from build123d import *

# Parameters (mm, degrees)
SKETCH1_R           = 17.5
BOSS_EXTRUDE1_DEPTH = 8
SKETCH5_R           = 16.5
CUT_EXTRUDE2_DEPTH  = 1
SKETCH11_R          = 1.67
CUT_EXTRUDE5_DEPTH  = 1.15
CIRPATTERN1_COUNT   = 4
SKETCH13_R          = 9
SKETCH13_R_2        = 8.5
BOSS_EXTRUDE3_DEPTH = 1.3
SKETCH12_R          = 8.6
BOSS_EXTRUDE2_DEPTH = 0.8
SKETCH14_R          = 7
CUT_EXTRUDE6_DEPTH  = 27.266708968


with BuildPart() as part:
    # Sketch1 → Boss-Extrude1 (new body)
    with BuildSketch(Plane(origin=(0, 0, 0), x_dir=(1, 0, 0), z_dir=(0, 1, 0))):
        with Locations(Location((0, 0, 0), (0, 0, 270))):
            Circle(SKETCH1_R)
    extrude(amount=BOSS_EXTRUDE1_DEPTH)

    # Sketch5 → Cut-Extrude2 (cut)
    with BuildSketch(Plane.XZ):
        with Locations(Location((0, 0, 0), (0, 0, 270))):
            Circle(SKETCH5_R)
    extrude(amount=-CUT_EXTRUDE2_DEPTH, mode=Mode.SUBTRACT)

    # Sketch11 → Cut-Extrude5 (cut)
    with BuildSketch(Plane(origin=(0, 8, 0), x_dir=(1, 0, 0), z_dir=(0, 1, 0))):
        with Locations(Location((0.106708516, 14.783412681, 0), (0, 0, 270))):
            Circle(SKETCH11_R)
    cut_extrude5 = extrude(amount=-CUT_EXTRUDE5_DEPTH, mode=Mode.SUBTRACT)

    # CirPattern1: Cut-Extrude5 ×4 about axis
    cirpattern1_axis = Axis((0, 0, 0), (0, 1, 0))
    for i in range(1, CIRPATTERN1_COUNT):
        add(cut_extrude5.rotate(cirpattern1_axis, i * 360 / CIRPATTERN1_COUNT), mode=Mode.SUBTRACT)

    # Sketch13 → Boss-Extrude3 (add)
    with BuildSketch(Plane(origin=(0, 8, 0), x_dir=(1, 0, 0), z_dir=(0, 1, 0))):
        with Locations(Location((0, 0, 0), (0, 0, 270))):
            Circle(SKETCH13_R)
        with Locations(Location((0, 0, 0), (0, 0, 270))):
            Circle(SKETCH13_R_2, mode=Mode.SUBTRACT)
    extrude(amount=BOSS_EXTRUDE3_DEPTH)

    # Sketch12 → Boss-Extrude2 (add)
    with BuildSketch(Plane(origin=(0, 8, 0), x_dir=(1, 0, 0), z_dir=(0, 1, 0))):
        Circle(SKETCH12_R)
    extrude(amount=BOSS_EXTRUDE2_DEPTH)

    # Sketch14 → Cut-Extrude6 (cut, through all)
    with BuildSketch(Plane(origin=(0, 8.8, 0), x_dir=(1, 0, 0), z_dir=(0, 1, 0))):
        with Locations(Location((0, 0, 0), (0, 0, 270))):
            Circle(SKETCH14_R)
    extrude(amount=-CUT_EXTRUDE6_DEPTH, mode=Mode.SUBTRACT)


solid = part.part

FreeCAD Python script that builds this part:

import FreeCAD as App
import Part
import Sketcher
Q = App.Units.Quantity

doc = App.newDocument("Part")
params = doc.addObject("Spreadsheet::Sheet", "Params")
for row, (alias, value) in enumerate([
    ("sketch1_diameter", "35 mm"),
    ("pad1_length", "8 mm"),
    ("sketch2_diameter", "33 mm"),
    ("pocket1_length", "1 mm"),
    ("sketch3_diameter", "3.34 mm"),
    ("pocket2_length", "1.15 mm"),
    ("sketch4_diameter", "18 mm"),
    ("sketch4_diameter2", "17 mm"),
    ("pad2_length", "1.3 mm"),
    ("sketch5_diameter", "17.2 mm"),
    ("pad3_length", "0.8 mm"),
    ("sketch6_diameter", "14 mm"),
], start=1):
    params.set(f"A{row}", alias)
    params.set(f"B{row}", "=" + value)
    params.setAlias(f"B{row}", alias)

body = doc.addObject("PartDesign::Body", "Body")

# Sketch on XZ plane
sketch1 = doc.addObject("Sketcher::SketchObject", "Sketch")
body.addObject(sketch1)
sketch1.AttachmentSupport = (doc.XZ_Plane, [""])
sketch1.MapMode = "FlatFace"
sketch1.addGeometry(Part.Circle(App.Vector(0, 0, 0), App.Vector(0, 0, 1), 17.5), False)
sketch1.addConstraint([
    Sketcher.Constraint("Coincident", 0, 3, -1, 1),
    Sketcher.Constraint("Diameter", 0, Q("35 mm")),
])
sketch1.setExpression("Constraints[1]", "Params.sketch1_diameter")
pad1 = doc.addObject("PartDesign::Pad", "Pad")
body.addObject(pad1)
pad1.Profile = sketch1
pad1.setExpression("Length", "Params.pad1_length")
pad1.Reversed = True

# Sketch on XZ plane
sketch2 = doc.addObject("Sketcher::SketchObject", "Sketch001")
body.addObject(sketch2)
sketch2.AttachmentSupport = (doc.XZ_Plane, [""])
sketch2.MapMode = "FlatFace"
sketch2.addGeometry(Part.Circle(App.Vector(0, 0, 0), App.Vector(0, 0, 1), 16.5), False)
sketch2.addConstraint([
    Sketcher.Constraint("Coincident", 0, 3, -1, 1),
    Sketcher.Constraint("Diameter", 0, Q("33 mm")),
])
sketch2.setExpression("Constraints[1]", "Params.sketch2_diameter")
pocket1 = doc.addObject("PartDesign::Pocket", "Pocket")
body.addObject(pocket1)
pocket1.Profile = sketch2
pocket1.setExpression("Length", "Params.pocket1_length")

# Sketch on XZ plane
sketch3 = doc.addObject("Sketcher::SketchObject", "Sketch002")
body.addObject(sketch3)
sketch3.AttachmentSupport = (doc.XZ_Plane, [""])
sketch3.MapMode = "FlatFace"
sketch3.AttachmentOffset = App.Placement(App.Vector(0, 0, -8), App.Rotation())
sketch3.addGeometry(Part.Circle(App.Vector(0.106709, -14.783413, 0), App.Vector(0, 0, 1), 1.67), False)
sketch3.addConstraint([
    Sketcher.Constraint("Diameter", 0, Q("3.34 mm")),
    Sketcher.Constraint("DistanceX", -1, 1, 0, 3, Q("0.106709 mm")),
    Sketcher.Constraint("DistanceY", 0, 3, -1, 1, Q("14.783413 mm")),
])
sketch3.setExpression("Constraints[0]", "Params.sketch3_diameter")
pocket2 = doc.addObject("PartDesign::Pocket", "Pocket001")
body.addObject(pocket2)
pocket2.Profile = sketch3
pocket2.setExpression("Length", "Params.pocket2_length")
pocket2.Reversed = True
doc.recompute()

polarpattern = doc.addObject("PartDesign::PolarPattern", "PolarPattern")
body.addObject(polarpattern)
polarpattern.Originals = [pocket2]
polarpattern.Axis = (doc.Y_Axis, [""])
polarpattern.Angle = 360
polarpattern.Occurrences = 4
body.Tip = polarpattern

# Sketch on XZ plane
sketch4 = doc.addObject("Sketcher::SketchObject", "Sketch003")
body.addObject(sketch4)
sketch4.AttachmentSupport = (doc.XZ_Plane, [""])
sketch4.MapMode = "FlatFace"
sketch4.AttachmentOffset = App.Placement(App.Vector(0, 0, -8), App.Rotation())
sketch4.addGeometry([
    Part.Circle(App.Vector(0, 0, 0), App.Vector(0, 0, 1), 9),
    Part.Circle(App.Vector(0, 0, 0), App.Vector(0, 0, 1), 8.5),
], False)
sketch4.addConstraint([
    Sketcher.Constraint("Coincident", 0, 3, -1, 1),
    Sketcher.Constraint("Coincident", 1, 3, -1, 1),
    Sketcher.Constraint("Diameter", 0, Q("18 mm")),
    Sketcher.Constraint("Diameter", 1, Q("17 mm")),
])
sketch4.setExpression("Constraints[2]", "Params.sketch4_diameter")
sketch4.setExpression("Constraints[3]", "Params.sketch4_diameter2")
pad2 = doc.addObject("PartDesign::Pad", "Pad001")
body.addObject(pad2)
pad2.Profile = sketch4
pad2.setExpression("Length", "Params.pad2_length")
pad2.Reversed = True

# Sketch on XZ plane
sketch5 = doc.addObject("Sketcher::SketchObject", "Sketch004")
body.addObject(sketch5)
sketch5.AttachmentSupport = (doc.XZ_Plane, [""])
sketch5.MapMode = "FlatFace"
sketch5.AttachmentOffset = App.Placement(App.Vector(0, 0, -8), App.Rotation())
sketch5.addGeometry(Part.Circle(App.Vector(0, 0, 0), App.Vector(0, 0, 1), 8.6), False)
sketch5.addConstraint([
    Sketcher.Constraint("Coincident", 0, 3, -1, 1),
    Sketcher.Constraint("Diameter", 0, Q("17.2 mm")),
])
sketch5.setExpression("Constraints[1]", "Params.sketch5_diameter")
pad3 = doc.addObject("PartDesign::Pad", "Pad002")
body.addObject(pad3)
pad3.Profile = sketch5
pad3.setExpression("Length", "Params.pad3_length")
pad3.Reversed = True

# Sketch on XZ plane
sketch6 = doc.addObject("Sketcher::SketchObject", "Sketch005")
body.addObject(sketch6)
sketch6.AttachmentSupport = (doc.XZ_Plane, [""])
sketch6.MapMode = "FlatFace"
sketch6.AttachmentOffset = App.Placement(App.Vector(0, 0, -8.8), App.Rotation())
sketch6.addGeometry(Part.Circle(App.Vector(0, 0, 0), App.Vector(0, 0, 1), 7), False)
sketch6.addConstraint([
    Sketcher.Constraint("Coincident", 0, 3, -1, 1),
    Sketcher.Constraint("Diameter", 0, Q("14 mm")),
])
sketch6.setExpression("Constraints[1]", "Params.sketch6_diameter")
pocket3 = doc.addObject("PartDesign::Pocket", "Pocket002")
body.addObject(pocket3)
pocket3.Profile = sketch6
pocket3.Type = "ThroughAll"
pocket3.Reversed = True

doc.recompute()
